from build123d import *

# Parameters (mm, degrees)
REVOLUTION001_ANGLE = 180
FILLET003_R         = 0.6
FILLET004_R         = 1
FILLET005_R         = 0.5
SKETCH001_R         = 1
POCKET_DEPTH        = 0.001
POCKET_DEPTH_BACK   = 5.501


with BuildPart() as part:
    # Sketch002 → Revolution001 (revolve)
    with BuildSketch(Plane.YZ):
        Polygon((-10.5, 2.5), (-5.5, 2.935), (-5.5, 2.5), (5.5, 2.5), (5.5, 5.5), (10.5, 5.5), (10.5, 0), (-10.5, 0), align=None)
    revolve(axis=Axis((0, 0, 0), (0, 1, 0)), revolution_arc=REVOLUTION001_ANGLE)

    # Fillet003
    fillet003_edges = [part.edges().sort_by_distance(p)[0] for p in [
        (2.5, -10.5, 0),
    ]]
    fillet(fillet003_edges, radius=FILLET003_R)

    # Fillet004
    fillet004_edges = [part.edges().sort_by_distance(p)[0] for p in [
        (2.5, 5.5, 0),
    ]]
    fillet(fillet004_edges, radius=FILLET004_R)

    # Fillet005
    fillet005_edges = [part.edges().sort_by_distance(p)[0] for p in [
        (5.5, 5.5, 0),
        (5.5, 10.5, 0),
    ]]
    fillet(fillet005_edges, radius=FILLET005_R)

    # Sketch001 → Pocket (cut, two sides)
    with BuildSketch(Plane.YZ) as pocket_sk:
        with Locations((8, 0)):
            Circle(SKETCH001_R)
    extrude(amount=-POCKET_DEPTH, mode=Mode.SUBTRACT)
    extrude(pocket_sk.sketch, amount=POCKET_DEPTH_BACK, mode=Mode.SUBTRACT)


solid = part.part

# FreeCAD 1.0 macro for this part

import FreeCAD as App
import Part
import Sketcher

V = App.Vector
Q = App.Units.Quantity


def edges_at(feature, points):
    """Names of the edges that pass closest to the given points."""
    edges = feature.Shape.Edges
    near = lambda p: min(range(len(edges)), key=lambda i: edges[i].distToShape(Part.Vertex(*p))[0])
    return sorted({f"Edge{near(p) + 1}" for p in points})


def add_polygon(sketch, points):
    """Adds a closed chain of lines whose ends are joined by coincident constraints."""
    first, n = sketch.GeometryCount, len(points)
    for a, b in zip(points, points[1:] + points[:1]):
        sketch.addGeometry(Part.LineSegment(App.Vector(*a, 0), App.Vector(*b, 0)), False)
    for i in range(n):
        sketch.addConstraint(Sketcher.Constraint("Coincident", first + i, 2, first + (i + 1) % n, 1))

doc = App.newDocument("Part")
body = doc.addObject("PartDesign::Body", "Body")

# Sketch on YZ plane
sketch1 = body.newObject("Sketcher::SketchObject", "Sketch")
sketch1.AttachmentSupport = (doc.getObject("YZ_Plane"), [""])
sketch1.MapMode = "FlatFace"
add_polygon(sketch1, [(-5.5, 2.935), (-10.5, 2.5), (-10.5, 0), (10.5, 0), (10.5, 5.5), (5.5, 5.5), (5.5, 2.5), (-5.5, 2.5)])  # lines 0-7
sketch1.addConstraint([
    Sketcher.Constraint("Vertical", 1),
    Sketcher.Constraint("Horizontal", 2),
    Sketcher.Constraint("Vertical", 3),
    Sketcher.Constraint("Horizontal", 4),
    Sketcher.Constraint("Vertical", 5),
    Sketcher.Constraint("Horizontal", 6),
    Sketcher.Constraint("Vertical", 7),
    Sketcher.Constraint("Symmetric", 1, 2, 2, 2, -1, 1),
    Sketcher.Constraint("Horizontal", 0, 2, 5, 2),
    Sketcher.Constraint("DistanceX", 2, 1, 2, 2, Q("21 mm")),
    Sketcher.Constraint("DistanceX", 4, 2, 4, 1, Q("5 mm")),
    Sketcher.Constraint("DistanceX", 6, 2, 6, 1, Q("11 mm")),
    Sketcher.Constraint("DistanceY", 5, 2, 5, 1, Q("3 mm")),
    Sketcher.Constraint("DistanceY", 1, 2, 1, 1, Q("2.5 mm")),
    Sketcher.Constraint("DistanceY", 7, 1, 7, 2, Q("0.435 mm")),
])
revolution = body.newObject("PartDesign::Revolution", "Revolution")
revolution.Profile = sketch1
revolution.ReferenceAxis = (sketch1, ["H_Axis"])
revolution.Angle = 180
doc.recompute()

fillet = body.newObject("PartDesign::Fillet", "Fillet")
fillet.Base = (revolution, edges_at(revolution, [(2.5, -10.5, 0)]))
fillet.Radius = 0.6
doc.recompute()

fillet2 = body.newObject("PartDesign::Fillet", "Fillet001")
fillet2.Base = (fillet, edges_at(fillet, [(2.5, 5.5, 0)]))
fillet2.Radius = 1
doc.recompute()

fillet3 = body.newObject("PartDesign::Fillet", "Fillet002")
fillet3.Base = (fillet2, edges_at(fillet2, [(5.5, 5.5, 0), (5.5, 10.5, 0)]))
fillet3.Radius = 0.5

# Sketch on YZ plane
sketch2 = body.newObject("Sketcher::SketchObject", "Sketch001")
sketch2.AttachmentSupport = (doc.getObject("YZ_Plane"), [""])
sketch2.MapMode = "FlatFace"
sketch2.addGeometry(Part.Circle(V(8, 0, 0), V(0, 0, 1), 1), False)
sketch2.addConstraint([
    Sketcher.Constraint("PointOnObject", 0, 3, -1),
    Sketcher.Constraint("Diameter", 0, Q("2 mm")),
    Sketcher.Constraint("DistanceX", -1, 1, 0, 3, Q("8 mm")),
])
pocket1 = body.newObject("PartDesign::Pocket", "Pocket")
pocket1.Profile = sketch2
pocket1.Type = "ThroughAll"
pocket1.Midplane = True

doc.recompute()
